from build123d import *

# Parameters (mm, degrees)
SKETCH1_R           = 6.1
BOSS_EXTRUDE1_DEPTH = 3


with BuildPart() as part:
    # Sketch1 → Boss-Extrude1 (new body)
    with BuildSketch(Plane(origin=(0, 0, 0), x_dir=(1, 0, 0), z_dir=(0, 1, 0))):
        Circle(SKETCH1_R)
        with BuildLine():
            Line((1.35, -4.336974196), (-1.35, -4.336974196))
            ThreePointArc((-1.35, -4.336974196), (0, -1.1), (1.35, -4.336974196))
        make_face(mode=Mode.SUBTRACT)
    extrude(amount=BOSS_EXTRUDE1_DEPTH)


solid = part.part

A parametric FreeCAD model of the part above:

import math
import FreeCAD as App
import Part
import Sketcher

doc = App.newDocument("Part")
body = doc.addObject("PartDesign::Body", "Body")

# Sketch on XZ plane
sketch1 = doc.addObject("Sketcher::SketchObject", "Sketch")
body.addObject(sketch1)
sketch1.AttachmentSupport = (doc.XZ_Plane, [""])
sketch1.MapMode = "FlatFace"
sketch1.addGeometry([
    Part.Circle(App.Vector(0, 0, 0), App.Vector(0, 0, 1), 6.1),
    Part.ArcOfCircle(Part.Circle(App.Vector(0, 3, 0), App.Vector(0, 0, 1), 1.9), math.radians(135.277754), math.radians(404.722246)),
    Part.LineSegment(App.Vector(1.35, 4.336974, 0), App.Vector(-1.35, 4.336974, 0)),
], False)
sketch1.addConstraint([
    Sketcher.Constraint("Coincident", 1, 1, 2, 2),
    Sketcher.Constraint("Coincident", 2, 1, 1, 2),
    Sketcher.Constraint("Horizontal", 2),
    Sketcher.Constraint("Coincident", 0, 3, -1, 1),
    Sketcher.Constraint("PointOnObject", 1, 3, -2),
    Sketcher.Constraint("Diameter", 0, 12.2),
    Sketcher.Constraint("Radius", 1, 1.9),
    Sketcher.Constraint("DistanceX", 2, 2, 2, 1, 2.7),
    Sketcher.Constraint("DistanceY", -1, 1, 1, 3, 3.0),
])
pad1 = doc.addObject("PartDesign::Pad", "Pad")
body.addObject(pad1)
pad1.Profile = sketch1
pad1.Length = 3
pad1.Reversed = True

doc.recompute()
